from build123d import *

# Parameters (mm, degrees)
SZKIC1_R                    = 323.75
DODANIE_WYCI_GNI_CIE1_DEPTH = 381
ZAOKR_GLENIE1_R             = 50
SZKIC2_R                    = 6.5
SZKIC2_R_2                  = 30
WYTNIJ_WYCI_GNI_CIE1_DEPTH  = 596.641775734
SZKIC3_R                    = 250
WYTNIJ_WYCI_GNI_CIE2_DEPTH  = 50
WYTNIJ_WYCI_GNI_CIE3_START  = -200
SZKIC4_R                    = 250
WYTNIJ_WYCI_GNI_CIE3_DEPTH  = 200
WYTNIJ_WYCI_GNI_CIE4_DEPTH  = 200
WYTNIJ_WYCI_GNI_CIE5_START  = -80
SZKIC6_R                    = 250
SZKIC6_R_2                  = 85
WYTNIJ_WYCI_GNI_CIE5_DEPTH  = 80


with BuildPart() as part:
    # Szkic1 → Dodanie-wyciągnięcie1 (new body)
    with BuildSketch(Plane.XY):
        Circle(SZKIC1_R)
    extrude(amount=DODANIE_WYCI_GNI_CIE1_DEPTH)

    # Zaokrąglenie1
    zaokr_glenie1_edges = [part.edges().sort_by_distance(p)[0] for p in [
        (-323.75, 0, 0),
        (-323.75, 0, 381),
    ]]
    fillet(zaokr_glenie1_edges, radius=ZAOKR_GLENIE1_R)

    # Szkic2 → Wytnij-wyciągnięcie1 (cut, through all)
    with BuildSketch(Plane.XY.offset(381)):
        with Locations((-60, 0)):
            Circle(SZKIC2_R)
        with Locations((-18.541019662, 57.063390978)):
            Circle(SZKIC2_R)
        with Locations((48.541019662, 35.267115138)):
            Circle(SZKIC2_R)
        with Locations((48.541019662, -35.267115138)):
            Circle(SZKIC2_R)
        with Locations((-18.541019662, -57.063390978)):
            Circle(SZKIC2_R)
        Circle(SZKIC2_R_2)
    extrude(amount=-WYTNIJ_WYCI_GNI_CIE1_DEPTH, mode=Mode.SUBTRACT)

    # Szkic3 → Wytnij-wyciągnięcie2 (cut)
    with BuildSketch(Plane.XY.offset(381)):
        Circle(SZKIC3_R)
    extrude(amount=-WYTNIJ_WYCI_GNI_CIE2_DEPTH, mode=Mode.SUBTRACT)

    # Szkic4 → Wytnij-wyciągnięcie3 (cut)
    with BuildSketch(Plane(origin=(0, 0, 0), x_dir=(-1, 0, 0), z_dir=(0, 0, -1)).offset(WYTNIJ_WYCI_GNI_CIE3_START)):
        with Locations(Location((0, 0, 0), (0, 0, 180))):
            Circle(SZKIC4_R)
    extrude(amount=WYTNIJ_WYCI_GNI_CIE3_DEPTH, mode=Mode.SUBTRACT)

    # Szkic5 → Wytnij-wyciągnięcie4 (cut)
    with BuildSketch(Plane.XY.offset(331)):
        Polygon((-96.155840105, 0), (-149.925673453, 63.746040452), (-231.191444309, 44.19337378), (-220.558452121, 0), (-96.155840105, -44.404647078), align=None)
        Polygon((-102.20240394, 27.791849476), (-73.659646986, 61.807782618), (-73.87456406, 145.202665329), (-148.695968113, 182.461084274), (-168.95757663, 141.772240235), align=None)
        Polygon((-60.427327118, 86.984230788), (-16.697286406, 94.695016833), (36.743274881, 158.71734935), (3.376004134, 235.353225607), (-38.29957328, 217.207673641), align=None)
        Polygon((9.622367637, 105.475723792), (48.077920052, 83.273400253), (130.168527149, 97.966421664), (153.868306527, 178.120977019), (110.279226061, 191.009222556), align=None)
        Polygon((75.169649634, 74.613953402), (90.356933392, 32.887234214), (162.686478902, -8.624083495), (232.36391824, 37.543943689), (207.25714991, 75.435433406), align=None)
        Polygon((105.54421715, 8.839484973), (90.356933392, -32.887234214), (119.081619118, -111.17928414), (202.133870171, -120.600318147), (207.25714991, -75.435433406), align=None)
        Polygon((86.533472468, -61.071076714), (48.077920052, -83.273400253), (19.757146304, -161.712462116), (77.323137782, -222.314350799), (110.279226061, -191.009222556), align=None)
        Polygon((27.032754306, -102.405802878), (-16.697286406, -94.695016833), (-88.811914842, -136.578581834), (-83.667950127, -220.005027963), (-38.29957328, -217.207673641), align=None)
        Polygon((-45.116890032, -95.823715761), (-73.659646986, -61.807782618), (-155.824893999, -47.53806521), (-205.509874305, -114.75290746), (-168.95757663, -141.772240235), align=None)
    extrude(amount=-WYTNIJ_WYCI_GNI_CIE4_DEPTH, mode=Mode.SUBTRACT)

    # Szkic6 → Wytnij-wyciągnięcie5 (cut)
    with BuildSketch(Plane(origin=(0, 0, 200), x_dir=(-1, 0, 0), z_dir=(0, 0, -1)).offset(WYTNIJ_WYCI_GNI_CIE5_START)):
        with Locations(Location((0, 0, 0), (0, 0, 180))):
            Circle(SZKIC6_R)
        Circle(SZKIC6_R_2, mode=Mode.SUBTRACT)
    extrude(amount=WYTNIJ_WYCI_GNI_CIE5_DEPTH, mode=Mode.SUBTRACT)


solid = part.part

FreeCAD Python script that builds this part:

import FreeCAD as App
import Part
import Sketcher

V = App.Vector
Q = App.Units.Quantity


def edges_at(feature, points):
    """Names of the edges that pass closest to the given points."""
    edges = feature.Shape.Edges
    near = lambda p: min(range(len(edges)), key=lambda i: edges[i].distToShape(Part.Vertex(*p))[0])
    return sorted({f"Edge{near(p) + 1}" for p in points})


def add_polygon(sketch, points):
    """Adds a closed chain of lines whose ends are joined by coincident constraints."""
    first, n = sketch.GeometryCount, len(points)
    for a, b in zip(points, points[1:] + points[:1]):
        sketch.addGeometry(Part.LineSegment(App.Vector(*a, 0), App.Vector(*b, 0)), False)
    for i in range(n):
        sketch.addConstraint(Sketcher.Constraint("Coincident", first + i, 2, first + (i + 1) % n, 1))

doc = App.newDocument("Part")
body = doc.addObject("PartDesign::Body", "Body")

# Sketch on XY plane
sketch1 = doc.addObject("Sketcher::SketchObject", "Sketch")
body.addObject(sketch1)
sketch1.AttachmentSupport = (doc.XY_Plane, [""])
sketch1.MapMode = "FlatFace"
sketch1.addGeometry(Part.Circle(V(0, 0, 0), V(0, 0, 1), 324), False)
sketch1.addConstraint([
    Sketcher.Constraint("Coincident", 0, 3, -1, 1),
    Sketcher.Constraint("Diameter", 0, 647.5),
])
pad1 = doc.addObject("PartDesign::Pad", "Pad")
body.addObject(pad1)
pad1.Profile = sketch1
pad1.Length = 381
doc.recompute()

fillet = doc.addObject("PartDesign::Fillet", "Fillet")
body.addObject(fillet)
fillet.Base = (pad1, edges_at(pad1, [(-323.75, 0, 0), (-323.75, 0, 381)]))
fillet.Radius = 50

# Sketch on XY plane
sketch2 = doc.addObject("Sketcher::SketchObject", "Sketch001")
body.addObject(sketch2)
sketch2.AttachmentSupport = (doc.XY_Plane, [""])
sketch2.MapMode = "FlatFace"
sketch2.AttachmentOffset = App.Placement(V(0, 0, 381), App.Rotation())
sketch2.addGeometry([
    Part.Circle(V(-60, 0, 0), V(0, 0, 1), 6),  # 0
    Part.Circle(V(-19, 57, 0), V(0, 0, 1), 6),  # 1
    Part.Circle(V(49, 35, 0), V(0, 0, 1), 6),  # 2
    Part.Circle(V(49, -35, 0), V(0, 0, 1), 6),  # 3
    Part.Circle(V(-19, -57, 0), V(0, 0, 1), 6),  # 4
    Part.Circle(V(0, 0, 0), V(0, 0, 1), 30),  # 5
], False)
sketch2.addConstraint([
    Sketcher.Constraint("Coincident", 5, 3, -1, 1),
    Sketcher.Constraint("Equal", 0, 1),
    Sketcher.Constraint("Equal", 1, 2),
    Sketcher.Constraint("Equal", 2, 3),
    Sketcher.Constraint("Equal", 3, 4),
    Sketcher.Constraint("Symmetric", 2, 3, 3, 3, -1),
    Sketcher.Constraint("Symmetric", 1, 3, 4, 3, -1),
    Sketcher.Constraint("PointOnObject", 0, 3, -1),
    Sketcher.Constraint("Diameter", 0, 13.0),
    Sketcher.Constraint("Diameter", 5, 60.0),
    Sketcher.Constraint("DistanceX", 0, 3, -1, 1, 60.0),
    Sketcher.Constraint("DistanceX", 1, 3, -1, 1, 18.54102),
    Sketcher.Constraint("DistanceY", -1, 1, 1, 3, 57.063391),
    Sketcher.Constraint("DistanceX", -1, 1, 2, 3, 48.54102),
    Sketcher.Constraint("DistanceY", 3, 3, 2, 3, 70.53423),
])
pocket1 = doc.addObject("PartDesign::Pocket", "Pocket")
body.addObject(pocket1)
pocket1.Profile = sketch2
pocket1.Type = "ThroughAll"

# Sketch on XY plane
sketch3 = doc.addObject("Sketcher::SketchObject", "Sketch002")
body.addObject(sketch3)
sketch3.AttachmentSupport = (doc.XY_Plane, [""])
sketch3.MapMode = "FlatFace"
sketch3.AttachmentOffset = App.Placement(V(0, 0, 381), App.Rotation())
sketch3.addGeometry(Part.Circle(V(0, 0, 0), V(0, 0, 1), 250), False)
sketch3.addConstraint([
    Sketcher.Constraint("Coincident", 0, 3, -1, 1),
    Sketcher.Constraint("Diameter", 0, 500.0),
])
pocket2 = doc.addObject("PartDesign::Pocket", "Pocket001")
body.addObject(pocket2)
pocket2.Profile = sketch3
pocket2.Length = 50

# Sketch on XY plane
sketch4 = doc.addObject("Sketcher::SketchObject", "Sketch003")
body.addObject(sketch4)
sketch4.AttachmentSupport = (doc.XY_Plane, [""])
sketch4.MapMode = "FlatFace"
sketch4.AttachmentOffset = App.Placement(V(0, 0, 200), App.Rotation())
sketch4.addGeometry(Part.Circle(V(0, 0, 0), V(0, 0, 1), 250), False)
sketch4.addConstraint([
    Sketcher.Constraint("Coincident", 0, 3, -1, 1),
    Sketcher.Constraint("Diameter", 0, 500.0),
])
pocket3 = doc.addObject("PartDesign::Pocket", "Pocket002")
body.addObject(pocket3)
pocket3.Profile = sketch4
pocket3.Length = 200

# Sketch on XY plane
sketch5 = doc.addObject("Sketcher::SketchObject", "Sketch004")
body.addObject(sketch5)
sketch5.AttachmentSupport = (doc.XY_Plane, [""])
sketch5.MapMode = "FlatFace"
sketch5.AttachmentOffset = App.Placement(V(0, 0, 331), App.Rotation())
add_polygon(sketch5, [(-96, 0), (-150, 64), (-231, 44), (-221, 0), (-96, -44)])  # lines 0-4
add_polygon(sketch5, [(-102, 28), (-74, 62), (-74, 145), (-149, 182), (-169, 142)])  # lines 5-9
add_polygon(sketch5, [(-60, 87), (-17, 95), (37, 159), (3, 235), (-38, 217)])  # lines 10-14
add_polygon(sketch5, [(10, 105), (48, 83), (130, 98), (154, 178), (110, 191)])  # lines 15-19
add_polygon(sketch5, [(75, 75), (90, 33), (163, -9), (232, 38), (207, 75)])  # lines 20-24
add_polygon(sketch5, [(106, 9), (90, -33), (119, -111), (202, -121), (207, -75)])  # lines 25-29
add_polygon(sketch5, [(87, -61), (48, -83), (20, -162), (77, -222), (110, -191)])  # lines 30-34
add_polygon(sketch5, [(27, -102), (-17, -95), (-89, -137), (-84, -220), (-38, -217)])  # lines 35-39
add_polygon(sketch5, [(-45, -96), (-74, -62), (-156, -48), (-206, -115), (-169, -142)])  # lines 40-44
sketch5.addConstraint([
    Sketcher.Constraint("Vertical", 4),
    Sketcher.Constraint("Symmetric", 20, 2, 25, 2, -1),
    Sketcher.Constraint("Symmetric", 23, 2, 28, 2, -1),
    Sketcher.Constraint("Symmetric", 15, 2, 30, 2, -1),
    Sketcher.Constraint("Symmetric", 18, 2, 33, 2, -1),
    Sketcher.Constraint("Symmetric", 10, 2, 35, 2, -1),
    Sketcher.Constraint("Symmetric", 13, 2, 38, 2, -1),
    Sketcher.Constraint("Symmetric", 5, 2, 40, 2, -1),
    Sketcher.Constraint("Symmetric", 8, 2, 43, 2, -1),
    Sketcher.Constraint("PointOnObject", 2, 2, -1),
    Sketcher.Constraint("PointOnObject", 4, 2, -1),
    Sketcher.Constraint("Perpendicular", 1, 2),
    Sketcher.Constraint("Perpendicular", 7, 8),
    Sketcher.Constraint("Perpendicular", 12, 13),
    Sketcher.Constraint("Perpendicular", 17, 18),
    Sketcher.Constraint("Perpendicular", 22, 23),
    Sketcher.Constraint("Perpendicular", 27, 28),
    Sketcher.Constraint("Perpendicular", 32, 33),
    Sketcher.Constraint("Perpendicular", 37, 38),
    Sketcher.Constraint("Perpendicular", 42, 43),
    Sketcher.Constraint("Equal", 0, 6),
    Sketcher.Constraint("Equal", 1, 7),
    Sketcher.Constraint("Equal", 2, 8),
    Sketcher.Constraint("Equal", 3, 9),
    Sketcher.Constraint("Equal", 5, 10),
    Sketcher.Constraint("Equal", 6, 11),
    Sketcher.Constraint("Equal", 7, 12),
    Sketcher.Constraint("Equal", 8, 13),
    Sketcher.Constraint("Equal", 9, 14),
    Sketcher.Constraint("Equal", 10, 15),
    Sketcher.Constraint("Equal", 11, 16),
    Sketcher.Constraint("Equal", 12, 17),
    Sketcher.Constraint("Equal", 13, 18),
    Sketcher.Constraint("Equal", 14, 19),
    Sketcher.Constraint("Equal", 15, 20),
    Sketcher.Constraint("Equal", 16, 21),
    Sketcher.Constraint("Equal", 17, 22),
    Sketcher.Constraint("Equal", 18, 23),
    Sketcher.Constraint("Equal", 19, 24),
    Sketcher.Constraint("Equal", 20, 25),
    Sketcher.Constraint("Equal", 21, 26),
    Sketcher.Constraint("Equal", 22, 27),
    Sketcher.Constraint("Equal", 23, 28),
    Sketcher.Constraint("Equal", 24, 29),
    Sketcher.Constraint("Equal", 25, 30),
    Sketcher.Constraint("Equal", 26, 31),
    Sketcher.Constraint("Equal", 27, 32),
    Sketcher.Constraint("Equal", 28, 33),
    Sketcher.Constraint("Equal", 29, 34),
    Sketcher.Constraint("Equal", 30, 35),
    Sketcher.Constraint("Equal", 31, 36),
    Sketcher.Constraint("Equal", 32, 37),
    Sketcher.Constraint("Equal", 33, 38),
    Sketcher.Constraint("Equal", 34, 39),
    Sketcher.Constraint("Equal", 35, 40),
    Sketcher.Constraint("Equal", 36, 41),
    Sketcher.Constraint("Equal", 37, 42),
    Sketcher.Constraint("Equal", 38, 43),
    Sketcher.Constraint("Equal", 39, 44),
    Sketcher.Constraint("Angle", 5, Q("50 deg")),
    Sketcher.Constraint("Angle", 10, Q("10 deg")),
    Sketcher.Constraint("Angle", 15, Q("-30 deg")),
    Sketcher.Constraint("Angle", 20, Q("-70 deg")),
    Sketcher.Constraint("Angle", 25, Q("-110 deg")),
    Sketcher.Constraint("Angle", 30, Q("-150 deg")),
    Sketcher.Constraint("Angle", 35, Q("170 deg")),
    Sketcher.Constraint("Angle", 40, Q("130 deg")),
    Sketcher.Constraint("DistanceX", 15, 2, 22, 2, 184.285998),
    Sketcher.Constraint("DistanceY", -1, 1, 15, 2, 83.2734),
    Sketcher.Constraint("DistanceY", 5, 2, 7, 2, 120.653302),
    Sketcher.Constraint("DistanceY", 0, 2, 8, 2, 78.0262),
    Sketcher.Constraint("DistanceY", 9, 2, 11, 2, 130.9255),
    Sketcher.Constraint("DistanceX", 18, 2, 16, 2, 19.889301),
    Sketcher.Constraint("DistanceY", 16, 2, 18, 2, 93.042801),
    Sketcher.Constraint("DistanceY", 20, 2, 23, 2, 42.548199),
    Sketcher.Constraint("DistanceY", 26, 2, 21, 2, 102.555201),
    Sketcher.Constraint("DistanceY", 36, 2, 40, 2, 74.770799),
    Sketcher.Constraint("DistanceY", 4, 1, 4, 2, 44.404647),
    Sketcher.Constraint("DistanceX", 3, 2, -1, 1, 96.15584),
    Sketcher.Constraint("DistanceX", 7, 2, -1, 1, 148.695968),
    Sketcher.Constraint("DistanceX", -1, 1, 15, 2, 48.07792),
    Sketcher.Constraint("DistanceX", 37, 2, -1, 1, 83.66795),
])
pocket4 = doc.addObject("PartDesign::Pocket", "Pocket003")
body.addObject(pocket4)
pocket4.Profile = sketch5
pocket4.Length = 200

# Sketch on XY plane
sketch6 = doc.addObject("Sketcher::SketchObject", "Sketch005")
body.addObject(sketch6)
sketch6.AttachmentSupport = (doc.XY_Plane, [""])
sketch6.MapMode = "FlatFace"
sketch6.AttachmentOffset = App.Placement(V(0, 0, 280), App.Rotation())
sketch6.addGeometry([
    Part.Circle(V(0, 0, 0), V(0, 0, 1), 250),
    Part.Circle(V(0, 0, 0), V(0, 0, 1), 85),
], False)
sketch6.addConstraint([
    Sketcher.Constraint("Coincident", 0, 3, -1, 1),
    Sketcher.Constraint("Coincident", 1, 3, -1, 1),
    Sketcher.Constraint("Diameter", 0, 500.0),
    Sketcher.Constraint("Diameter", 1, 170.0),
])
pocket5 = doc.addObject("PartDesign::Pocket", "Pocket004")
body.addObject(pocket5)
pocket5.Profile = sketch6
pocket5.Length = 80

doc.recompute()
